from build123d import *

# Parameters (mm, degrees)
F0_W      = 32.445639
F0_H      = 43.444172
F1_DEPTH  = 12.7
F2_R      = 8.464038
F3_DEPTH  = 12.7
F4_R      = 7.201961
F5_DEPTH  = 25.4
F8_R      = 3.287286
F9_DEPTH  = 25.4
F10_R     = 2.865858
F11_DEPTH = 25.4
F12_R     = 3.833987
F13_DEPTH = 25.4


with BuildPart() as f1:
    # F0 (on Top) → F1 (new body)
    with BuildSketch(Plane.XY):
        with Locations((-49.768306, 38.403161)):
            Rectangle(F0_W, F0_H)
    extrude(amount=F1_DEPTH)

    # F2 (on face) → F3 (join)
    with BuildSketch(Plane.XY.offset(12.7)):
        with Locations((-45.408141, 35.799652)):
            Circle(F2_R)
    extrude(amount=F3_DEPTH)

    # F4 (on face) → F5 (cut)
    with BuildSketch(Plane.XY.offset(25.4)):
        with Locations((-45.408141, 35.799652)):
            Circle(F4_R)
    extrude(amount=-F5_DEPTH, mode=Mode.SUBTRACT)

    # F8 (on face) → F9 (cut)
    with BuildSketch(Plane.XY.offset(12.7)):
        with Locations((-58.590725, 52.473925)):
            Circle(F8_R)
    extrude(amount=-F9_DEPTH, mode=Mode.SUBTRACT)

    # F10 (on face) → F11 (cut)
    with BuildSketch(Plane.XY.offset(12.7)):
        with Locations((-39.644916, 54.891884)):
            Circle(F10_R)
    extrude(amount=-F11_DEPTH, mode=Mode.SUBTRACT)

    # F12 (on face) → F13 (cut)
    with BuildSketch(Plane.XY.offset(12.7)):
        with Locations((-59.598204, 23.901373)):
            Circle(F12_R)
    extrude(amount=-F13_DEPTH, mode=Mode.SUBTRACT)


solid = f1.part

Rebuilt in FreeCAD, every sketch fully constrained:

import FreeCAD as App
import Part
import Sketcher

V = App.Vector
Q = App.Units.Quantity

doc = App.newDocument("Part")
body = doc.addObject("PartDesign::Body", "Body")

# Sketch on XY plane
sketch1 = body.newObject("Sketcher::SketchObject", "Sketch")
sketch1.AttachmentSupport = (doc.getObject("XY_Plane"), [""])
sketch1.MapMode = "FlatFace"
sketch1.addGeometry([
    Part.LineSegment(V(-65.991125, 60.125247, 0), V(-65.991125, 16.681075, 0)),
    Part.LineSegment(V(-65.991125, 16.681075, 0), V(-33.545487, 16.681075, 0)),
    Part.LineSegment(V(-33.545487, 16.681075, 0), V(-33.545487, 60.125247, 0)),
    Part.LineSegment(V(-33.545487, 60.125247, 0), V(-65.991125, 60.125247, 0)),
], False)
sketch1.addConstraint([
    Sketcher.Constraint("Coincident", 0, 2, 1, 1),
    Sketcher.Constraint("Coincident", 1, 2, 2, 1),
    Sketcher.Constraint("Coincident", 2, 2, 3, 1),
    Sketcher.Constraint("Coincident", 3, 2, 0, 1),
    Sketcher.Constraint("Vertical", 0),
    Sketcher.Constraint("Horizontal", 1),
    Sketcher.Constraint("Vertical", 2),
    Sketcher.Constraint("Horizontal", 3),
    Sketcher.Constraint("DistanceX", 1, 1, 1, 2, 32.445639),
    Sketcher.Constraint("DistanceY", 0, 2, 0, 1, 43.444172),
    Sketcher.Constraint("DistanceX", 0, 2, -1, 1, 65.991125),
    Sketcher.Constraint("DistanceY", -1, 1, 0, 2, 16.681075),
])
pad1 = body.newObject("PartDesign::Pad", "Pad")
pad1.Profile = sketch1
pad1.Length = Q("0.5 in")

# Sketch on XY plane
sketch2 = body.newObject("Sketcher::SketchObject", "Sketch001")
sketch2.AttachmentSupport = (doc.getObject("XY_Plane"), [""])
sketch2.MapMode = "FlatFace"
sketch2.AttachmentOffset = App.Placement(V(0, 0, 0.5 * 25.4), App.Rotation())
sketch2.addGeometry(Part.Circle(V(-45.408141, 35.799652, 0), V(0, 0, 1), 8.464038), False)
sketch2.addConstraint([
    Sketcher.Constraint("Diameter", 0, 16.928076),
    Sketcher.Constraint("DistanceX", 0, 3, -1, 1, 45.408141),
    Sketcher.Constraint("DistanceY", -1, 1, 0, 3, 35.799652),
])
pad2 = body.newObject("PartDesign::Pad", "Pad001")
pad2.Profile = sketch2
pad2.Length = Q("0.5 in")

# Sketch on XY plane
sketch3 = body.newObject("Sketcher::SketchObject", "Sketch002")
sketch3.AttachmentSupport = (doc.getObject("XY_Plane"), [""])
sketch3.MapMode = "FlatFace"
sketch3.AttachmentOffset = App.Placement(V(0, 0, 1 * 25.4), App.Rotation())
sketch3.addGeometry(Part.Circle(V(-45.408141, 35.799652, 0), V(0, 0, 1), 7.201961), False)
sketch3.addConstraint([
    Sketcher.Constraint("Diameter", 0, 14.403922),
    Sketcher.Constraint("DistanceX", 0, 3, -1, 1, 45.408141),
    Sketcher.Constraint("DistanceY", -1, 1, 0, 3, 35.799652),
])
pocket1 = body.newObject("PartDesign::Pocket", "Pocket")
pocket1.Profile = sketch3
pocket1.Length = Q("1 in")

# Sketch on XY plane
sketch4 = body.newObject("Sketcher::SketchObject", "Sketch003")
sketch4.AttachmentSupport = (doc.getObject("XY_Plane"), [""])
sketch4.MapMode = "FlatFace"
sketch4.AttachmentOffset = App.Placement(V(0, 0, 0.5 * 25.4), App.Rotation())
sketch4.addGeometry(Part.Circle(V(-58.590725, 52.473925, 0), V(0, 0, 1), 3.287286), False)
sketch4.addConstraint([
    Sketcher.Constraint("Diameter", 0, 6.574572),
    Sketcher.Constraint("DistanceX", 0, 3, -1, 1, 58.590725),
    Sketcher.Constraint("DistanceY", -1, 1, 0, 3, 52.473925),
])
pocket2 = body.newObject("PartDesign::Pocket", "Pocket001")
pocket2.Profile = sketch4
pocket2.Length = Q("1 in")

# Sketch on XY plane
sketch5 = body.newObject("Sketcher::SketchObject", "Sketch004")
sketch5.AttachmentSupport = (doc.getObject("XY_Plane"), [""])
sketch5.MapMode = "FlatFace"
sketch5.AttachmentOffset = App.Placement(V(0, 0, 0.5 * 25.4), App.Rotation())
sketch5.addGeometry(Part.Circle(V(-39.644916, 54.891884, 0), V(0, 0, 1), 2.865858), False)
sketch5.addConstraint([
    Sketcher.Constraint("Diameter", 0, 5.731716),
    Sketcher.Constraint("DistanceX", 0, 3, -1, 1, 39.644916),
    Sketcher.Constraint("DistanceY", -1, 1, 0, 3, 54.891884),
])
pocket3 = body.newObject("PartDesign::Pocket", "Pocket002")
pocket3.Profile = sketch5
pocket3.Length = Q("1 in")

# Sketch on XY plane
sketch6 = body.newObject("Sketcher::SketchObject", "Sketch005")
sketch6.AttachmentSupport = (doc.getObject("XY_Plane"), [""])
sketch6.MapMode = "FlatFace"
sketch6.AttachmentOffset = App.Placement(V(0, 0, 0.5 * 25.4), App.Rotation())
sketch6.addGeometry(Part.Circle(V(-59.598204, 23.901373, 0), V(0, 0, 1), 3.833987), False)
sketch6.addConstraint([
    Sketcher.Constraint("Diameter", 0, 7.667974),
    Sketcher.Constraint("DistanceX", 0, 3, -1, 1, 59.598204),
    Sketcher.Constraint("DistanceY", -1, 1, 0, 3, 23.901373),
])
pocket4 = body.newObject("PartDesign::Pocket", "Pocket003")
pocket4.Profile = sketch6
pocket4.Length = Q("1 in")

doc.recompute()
